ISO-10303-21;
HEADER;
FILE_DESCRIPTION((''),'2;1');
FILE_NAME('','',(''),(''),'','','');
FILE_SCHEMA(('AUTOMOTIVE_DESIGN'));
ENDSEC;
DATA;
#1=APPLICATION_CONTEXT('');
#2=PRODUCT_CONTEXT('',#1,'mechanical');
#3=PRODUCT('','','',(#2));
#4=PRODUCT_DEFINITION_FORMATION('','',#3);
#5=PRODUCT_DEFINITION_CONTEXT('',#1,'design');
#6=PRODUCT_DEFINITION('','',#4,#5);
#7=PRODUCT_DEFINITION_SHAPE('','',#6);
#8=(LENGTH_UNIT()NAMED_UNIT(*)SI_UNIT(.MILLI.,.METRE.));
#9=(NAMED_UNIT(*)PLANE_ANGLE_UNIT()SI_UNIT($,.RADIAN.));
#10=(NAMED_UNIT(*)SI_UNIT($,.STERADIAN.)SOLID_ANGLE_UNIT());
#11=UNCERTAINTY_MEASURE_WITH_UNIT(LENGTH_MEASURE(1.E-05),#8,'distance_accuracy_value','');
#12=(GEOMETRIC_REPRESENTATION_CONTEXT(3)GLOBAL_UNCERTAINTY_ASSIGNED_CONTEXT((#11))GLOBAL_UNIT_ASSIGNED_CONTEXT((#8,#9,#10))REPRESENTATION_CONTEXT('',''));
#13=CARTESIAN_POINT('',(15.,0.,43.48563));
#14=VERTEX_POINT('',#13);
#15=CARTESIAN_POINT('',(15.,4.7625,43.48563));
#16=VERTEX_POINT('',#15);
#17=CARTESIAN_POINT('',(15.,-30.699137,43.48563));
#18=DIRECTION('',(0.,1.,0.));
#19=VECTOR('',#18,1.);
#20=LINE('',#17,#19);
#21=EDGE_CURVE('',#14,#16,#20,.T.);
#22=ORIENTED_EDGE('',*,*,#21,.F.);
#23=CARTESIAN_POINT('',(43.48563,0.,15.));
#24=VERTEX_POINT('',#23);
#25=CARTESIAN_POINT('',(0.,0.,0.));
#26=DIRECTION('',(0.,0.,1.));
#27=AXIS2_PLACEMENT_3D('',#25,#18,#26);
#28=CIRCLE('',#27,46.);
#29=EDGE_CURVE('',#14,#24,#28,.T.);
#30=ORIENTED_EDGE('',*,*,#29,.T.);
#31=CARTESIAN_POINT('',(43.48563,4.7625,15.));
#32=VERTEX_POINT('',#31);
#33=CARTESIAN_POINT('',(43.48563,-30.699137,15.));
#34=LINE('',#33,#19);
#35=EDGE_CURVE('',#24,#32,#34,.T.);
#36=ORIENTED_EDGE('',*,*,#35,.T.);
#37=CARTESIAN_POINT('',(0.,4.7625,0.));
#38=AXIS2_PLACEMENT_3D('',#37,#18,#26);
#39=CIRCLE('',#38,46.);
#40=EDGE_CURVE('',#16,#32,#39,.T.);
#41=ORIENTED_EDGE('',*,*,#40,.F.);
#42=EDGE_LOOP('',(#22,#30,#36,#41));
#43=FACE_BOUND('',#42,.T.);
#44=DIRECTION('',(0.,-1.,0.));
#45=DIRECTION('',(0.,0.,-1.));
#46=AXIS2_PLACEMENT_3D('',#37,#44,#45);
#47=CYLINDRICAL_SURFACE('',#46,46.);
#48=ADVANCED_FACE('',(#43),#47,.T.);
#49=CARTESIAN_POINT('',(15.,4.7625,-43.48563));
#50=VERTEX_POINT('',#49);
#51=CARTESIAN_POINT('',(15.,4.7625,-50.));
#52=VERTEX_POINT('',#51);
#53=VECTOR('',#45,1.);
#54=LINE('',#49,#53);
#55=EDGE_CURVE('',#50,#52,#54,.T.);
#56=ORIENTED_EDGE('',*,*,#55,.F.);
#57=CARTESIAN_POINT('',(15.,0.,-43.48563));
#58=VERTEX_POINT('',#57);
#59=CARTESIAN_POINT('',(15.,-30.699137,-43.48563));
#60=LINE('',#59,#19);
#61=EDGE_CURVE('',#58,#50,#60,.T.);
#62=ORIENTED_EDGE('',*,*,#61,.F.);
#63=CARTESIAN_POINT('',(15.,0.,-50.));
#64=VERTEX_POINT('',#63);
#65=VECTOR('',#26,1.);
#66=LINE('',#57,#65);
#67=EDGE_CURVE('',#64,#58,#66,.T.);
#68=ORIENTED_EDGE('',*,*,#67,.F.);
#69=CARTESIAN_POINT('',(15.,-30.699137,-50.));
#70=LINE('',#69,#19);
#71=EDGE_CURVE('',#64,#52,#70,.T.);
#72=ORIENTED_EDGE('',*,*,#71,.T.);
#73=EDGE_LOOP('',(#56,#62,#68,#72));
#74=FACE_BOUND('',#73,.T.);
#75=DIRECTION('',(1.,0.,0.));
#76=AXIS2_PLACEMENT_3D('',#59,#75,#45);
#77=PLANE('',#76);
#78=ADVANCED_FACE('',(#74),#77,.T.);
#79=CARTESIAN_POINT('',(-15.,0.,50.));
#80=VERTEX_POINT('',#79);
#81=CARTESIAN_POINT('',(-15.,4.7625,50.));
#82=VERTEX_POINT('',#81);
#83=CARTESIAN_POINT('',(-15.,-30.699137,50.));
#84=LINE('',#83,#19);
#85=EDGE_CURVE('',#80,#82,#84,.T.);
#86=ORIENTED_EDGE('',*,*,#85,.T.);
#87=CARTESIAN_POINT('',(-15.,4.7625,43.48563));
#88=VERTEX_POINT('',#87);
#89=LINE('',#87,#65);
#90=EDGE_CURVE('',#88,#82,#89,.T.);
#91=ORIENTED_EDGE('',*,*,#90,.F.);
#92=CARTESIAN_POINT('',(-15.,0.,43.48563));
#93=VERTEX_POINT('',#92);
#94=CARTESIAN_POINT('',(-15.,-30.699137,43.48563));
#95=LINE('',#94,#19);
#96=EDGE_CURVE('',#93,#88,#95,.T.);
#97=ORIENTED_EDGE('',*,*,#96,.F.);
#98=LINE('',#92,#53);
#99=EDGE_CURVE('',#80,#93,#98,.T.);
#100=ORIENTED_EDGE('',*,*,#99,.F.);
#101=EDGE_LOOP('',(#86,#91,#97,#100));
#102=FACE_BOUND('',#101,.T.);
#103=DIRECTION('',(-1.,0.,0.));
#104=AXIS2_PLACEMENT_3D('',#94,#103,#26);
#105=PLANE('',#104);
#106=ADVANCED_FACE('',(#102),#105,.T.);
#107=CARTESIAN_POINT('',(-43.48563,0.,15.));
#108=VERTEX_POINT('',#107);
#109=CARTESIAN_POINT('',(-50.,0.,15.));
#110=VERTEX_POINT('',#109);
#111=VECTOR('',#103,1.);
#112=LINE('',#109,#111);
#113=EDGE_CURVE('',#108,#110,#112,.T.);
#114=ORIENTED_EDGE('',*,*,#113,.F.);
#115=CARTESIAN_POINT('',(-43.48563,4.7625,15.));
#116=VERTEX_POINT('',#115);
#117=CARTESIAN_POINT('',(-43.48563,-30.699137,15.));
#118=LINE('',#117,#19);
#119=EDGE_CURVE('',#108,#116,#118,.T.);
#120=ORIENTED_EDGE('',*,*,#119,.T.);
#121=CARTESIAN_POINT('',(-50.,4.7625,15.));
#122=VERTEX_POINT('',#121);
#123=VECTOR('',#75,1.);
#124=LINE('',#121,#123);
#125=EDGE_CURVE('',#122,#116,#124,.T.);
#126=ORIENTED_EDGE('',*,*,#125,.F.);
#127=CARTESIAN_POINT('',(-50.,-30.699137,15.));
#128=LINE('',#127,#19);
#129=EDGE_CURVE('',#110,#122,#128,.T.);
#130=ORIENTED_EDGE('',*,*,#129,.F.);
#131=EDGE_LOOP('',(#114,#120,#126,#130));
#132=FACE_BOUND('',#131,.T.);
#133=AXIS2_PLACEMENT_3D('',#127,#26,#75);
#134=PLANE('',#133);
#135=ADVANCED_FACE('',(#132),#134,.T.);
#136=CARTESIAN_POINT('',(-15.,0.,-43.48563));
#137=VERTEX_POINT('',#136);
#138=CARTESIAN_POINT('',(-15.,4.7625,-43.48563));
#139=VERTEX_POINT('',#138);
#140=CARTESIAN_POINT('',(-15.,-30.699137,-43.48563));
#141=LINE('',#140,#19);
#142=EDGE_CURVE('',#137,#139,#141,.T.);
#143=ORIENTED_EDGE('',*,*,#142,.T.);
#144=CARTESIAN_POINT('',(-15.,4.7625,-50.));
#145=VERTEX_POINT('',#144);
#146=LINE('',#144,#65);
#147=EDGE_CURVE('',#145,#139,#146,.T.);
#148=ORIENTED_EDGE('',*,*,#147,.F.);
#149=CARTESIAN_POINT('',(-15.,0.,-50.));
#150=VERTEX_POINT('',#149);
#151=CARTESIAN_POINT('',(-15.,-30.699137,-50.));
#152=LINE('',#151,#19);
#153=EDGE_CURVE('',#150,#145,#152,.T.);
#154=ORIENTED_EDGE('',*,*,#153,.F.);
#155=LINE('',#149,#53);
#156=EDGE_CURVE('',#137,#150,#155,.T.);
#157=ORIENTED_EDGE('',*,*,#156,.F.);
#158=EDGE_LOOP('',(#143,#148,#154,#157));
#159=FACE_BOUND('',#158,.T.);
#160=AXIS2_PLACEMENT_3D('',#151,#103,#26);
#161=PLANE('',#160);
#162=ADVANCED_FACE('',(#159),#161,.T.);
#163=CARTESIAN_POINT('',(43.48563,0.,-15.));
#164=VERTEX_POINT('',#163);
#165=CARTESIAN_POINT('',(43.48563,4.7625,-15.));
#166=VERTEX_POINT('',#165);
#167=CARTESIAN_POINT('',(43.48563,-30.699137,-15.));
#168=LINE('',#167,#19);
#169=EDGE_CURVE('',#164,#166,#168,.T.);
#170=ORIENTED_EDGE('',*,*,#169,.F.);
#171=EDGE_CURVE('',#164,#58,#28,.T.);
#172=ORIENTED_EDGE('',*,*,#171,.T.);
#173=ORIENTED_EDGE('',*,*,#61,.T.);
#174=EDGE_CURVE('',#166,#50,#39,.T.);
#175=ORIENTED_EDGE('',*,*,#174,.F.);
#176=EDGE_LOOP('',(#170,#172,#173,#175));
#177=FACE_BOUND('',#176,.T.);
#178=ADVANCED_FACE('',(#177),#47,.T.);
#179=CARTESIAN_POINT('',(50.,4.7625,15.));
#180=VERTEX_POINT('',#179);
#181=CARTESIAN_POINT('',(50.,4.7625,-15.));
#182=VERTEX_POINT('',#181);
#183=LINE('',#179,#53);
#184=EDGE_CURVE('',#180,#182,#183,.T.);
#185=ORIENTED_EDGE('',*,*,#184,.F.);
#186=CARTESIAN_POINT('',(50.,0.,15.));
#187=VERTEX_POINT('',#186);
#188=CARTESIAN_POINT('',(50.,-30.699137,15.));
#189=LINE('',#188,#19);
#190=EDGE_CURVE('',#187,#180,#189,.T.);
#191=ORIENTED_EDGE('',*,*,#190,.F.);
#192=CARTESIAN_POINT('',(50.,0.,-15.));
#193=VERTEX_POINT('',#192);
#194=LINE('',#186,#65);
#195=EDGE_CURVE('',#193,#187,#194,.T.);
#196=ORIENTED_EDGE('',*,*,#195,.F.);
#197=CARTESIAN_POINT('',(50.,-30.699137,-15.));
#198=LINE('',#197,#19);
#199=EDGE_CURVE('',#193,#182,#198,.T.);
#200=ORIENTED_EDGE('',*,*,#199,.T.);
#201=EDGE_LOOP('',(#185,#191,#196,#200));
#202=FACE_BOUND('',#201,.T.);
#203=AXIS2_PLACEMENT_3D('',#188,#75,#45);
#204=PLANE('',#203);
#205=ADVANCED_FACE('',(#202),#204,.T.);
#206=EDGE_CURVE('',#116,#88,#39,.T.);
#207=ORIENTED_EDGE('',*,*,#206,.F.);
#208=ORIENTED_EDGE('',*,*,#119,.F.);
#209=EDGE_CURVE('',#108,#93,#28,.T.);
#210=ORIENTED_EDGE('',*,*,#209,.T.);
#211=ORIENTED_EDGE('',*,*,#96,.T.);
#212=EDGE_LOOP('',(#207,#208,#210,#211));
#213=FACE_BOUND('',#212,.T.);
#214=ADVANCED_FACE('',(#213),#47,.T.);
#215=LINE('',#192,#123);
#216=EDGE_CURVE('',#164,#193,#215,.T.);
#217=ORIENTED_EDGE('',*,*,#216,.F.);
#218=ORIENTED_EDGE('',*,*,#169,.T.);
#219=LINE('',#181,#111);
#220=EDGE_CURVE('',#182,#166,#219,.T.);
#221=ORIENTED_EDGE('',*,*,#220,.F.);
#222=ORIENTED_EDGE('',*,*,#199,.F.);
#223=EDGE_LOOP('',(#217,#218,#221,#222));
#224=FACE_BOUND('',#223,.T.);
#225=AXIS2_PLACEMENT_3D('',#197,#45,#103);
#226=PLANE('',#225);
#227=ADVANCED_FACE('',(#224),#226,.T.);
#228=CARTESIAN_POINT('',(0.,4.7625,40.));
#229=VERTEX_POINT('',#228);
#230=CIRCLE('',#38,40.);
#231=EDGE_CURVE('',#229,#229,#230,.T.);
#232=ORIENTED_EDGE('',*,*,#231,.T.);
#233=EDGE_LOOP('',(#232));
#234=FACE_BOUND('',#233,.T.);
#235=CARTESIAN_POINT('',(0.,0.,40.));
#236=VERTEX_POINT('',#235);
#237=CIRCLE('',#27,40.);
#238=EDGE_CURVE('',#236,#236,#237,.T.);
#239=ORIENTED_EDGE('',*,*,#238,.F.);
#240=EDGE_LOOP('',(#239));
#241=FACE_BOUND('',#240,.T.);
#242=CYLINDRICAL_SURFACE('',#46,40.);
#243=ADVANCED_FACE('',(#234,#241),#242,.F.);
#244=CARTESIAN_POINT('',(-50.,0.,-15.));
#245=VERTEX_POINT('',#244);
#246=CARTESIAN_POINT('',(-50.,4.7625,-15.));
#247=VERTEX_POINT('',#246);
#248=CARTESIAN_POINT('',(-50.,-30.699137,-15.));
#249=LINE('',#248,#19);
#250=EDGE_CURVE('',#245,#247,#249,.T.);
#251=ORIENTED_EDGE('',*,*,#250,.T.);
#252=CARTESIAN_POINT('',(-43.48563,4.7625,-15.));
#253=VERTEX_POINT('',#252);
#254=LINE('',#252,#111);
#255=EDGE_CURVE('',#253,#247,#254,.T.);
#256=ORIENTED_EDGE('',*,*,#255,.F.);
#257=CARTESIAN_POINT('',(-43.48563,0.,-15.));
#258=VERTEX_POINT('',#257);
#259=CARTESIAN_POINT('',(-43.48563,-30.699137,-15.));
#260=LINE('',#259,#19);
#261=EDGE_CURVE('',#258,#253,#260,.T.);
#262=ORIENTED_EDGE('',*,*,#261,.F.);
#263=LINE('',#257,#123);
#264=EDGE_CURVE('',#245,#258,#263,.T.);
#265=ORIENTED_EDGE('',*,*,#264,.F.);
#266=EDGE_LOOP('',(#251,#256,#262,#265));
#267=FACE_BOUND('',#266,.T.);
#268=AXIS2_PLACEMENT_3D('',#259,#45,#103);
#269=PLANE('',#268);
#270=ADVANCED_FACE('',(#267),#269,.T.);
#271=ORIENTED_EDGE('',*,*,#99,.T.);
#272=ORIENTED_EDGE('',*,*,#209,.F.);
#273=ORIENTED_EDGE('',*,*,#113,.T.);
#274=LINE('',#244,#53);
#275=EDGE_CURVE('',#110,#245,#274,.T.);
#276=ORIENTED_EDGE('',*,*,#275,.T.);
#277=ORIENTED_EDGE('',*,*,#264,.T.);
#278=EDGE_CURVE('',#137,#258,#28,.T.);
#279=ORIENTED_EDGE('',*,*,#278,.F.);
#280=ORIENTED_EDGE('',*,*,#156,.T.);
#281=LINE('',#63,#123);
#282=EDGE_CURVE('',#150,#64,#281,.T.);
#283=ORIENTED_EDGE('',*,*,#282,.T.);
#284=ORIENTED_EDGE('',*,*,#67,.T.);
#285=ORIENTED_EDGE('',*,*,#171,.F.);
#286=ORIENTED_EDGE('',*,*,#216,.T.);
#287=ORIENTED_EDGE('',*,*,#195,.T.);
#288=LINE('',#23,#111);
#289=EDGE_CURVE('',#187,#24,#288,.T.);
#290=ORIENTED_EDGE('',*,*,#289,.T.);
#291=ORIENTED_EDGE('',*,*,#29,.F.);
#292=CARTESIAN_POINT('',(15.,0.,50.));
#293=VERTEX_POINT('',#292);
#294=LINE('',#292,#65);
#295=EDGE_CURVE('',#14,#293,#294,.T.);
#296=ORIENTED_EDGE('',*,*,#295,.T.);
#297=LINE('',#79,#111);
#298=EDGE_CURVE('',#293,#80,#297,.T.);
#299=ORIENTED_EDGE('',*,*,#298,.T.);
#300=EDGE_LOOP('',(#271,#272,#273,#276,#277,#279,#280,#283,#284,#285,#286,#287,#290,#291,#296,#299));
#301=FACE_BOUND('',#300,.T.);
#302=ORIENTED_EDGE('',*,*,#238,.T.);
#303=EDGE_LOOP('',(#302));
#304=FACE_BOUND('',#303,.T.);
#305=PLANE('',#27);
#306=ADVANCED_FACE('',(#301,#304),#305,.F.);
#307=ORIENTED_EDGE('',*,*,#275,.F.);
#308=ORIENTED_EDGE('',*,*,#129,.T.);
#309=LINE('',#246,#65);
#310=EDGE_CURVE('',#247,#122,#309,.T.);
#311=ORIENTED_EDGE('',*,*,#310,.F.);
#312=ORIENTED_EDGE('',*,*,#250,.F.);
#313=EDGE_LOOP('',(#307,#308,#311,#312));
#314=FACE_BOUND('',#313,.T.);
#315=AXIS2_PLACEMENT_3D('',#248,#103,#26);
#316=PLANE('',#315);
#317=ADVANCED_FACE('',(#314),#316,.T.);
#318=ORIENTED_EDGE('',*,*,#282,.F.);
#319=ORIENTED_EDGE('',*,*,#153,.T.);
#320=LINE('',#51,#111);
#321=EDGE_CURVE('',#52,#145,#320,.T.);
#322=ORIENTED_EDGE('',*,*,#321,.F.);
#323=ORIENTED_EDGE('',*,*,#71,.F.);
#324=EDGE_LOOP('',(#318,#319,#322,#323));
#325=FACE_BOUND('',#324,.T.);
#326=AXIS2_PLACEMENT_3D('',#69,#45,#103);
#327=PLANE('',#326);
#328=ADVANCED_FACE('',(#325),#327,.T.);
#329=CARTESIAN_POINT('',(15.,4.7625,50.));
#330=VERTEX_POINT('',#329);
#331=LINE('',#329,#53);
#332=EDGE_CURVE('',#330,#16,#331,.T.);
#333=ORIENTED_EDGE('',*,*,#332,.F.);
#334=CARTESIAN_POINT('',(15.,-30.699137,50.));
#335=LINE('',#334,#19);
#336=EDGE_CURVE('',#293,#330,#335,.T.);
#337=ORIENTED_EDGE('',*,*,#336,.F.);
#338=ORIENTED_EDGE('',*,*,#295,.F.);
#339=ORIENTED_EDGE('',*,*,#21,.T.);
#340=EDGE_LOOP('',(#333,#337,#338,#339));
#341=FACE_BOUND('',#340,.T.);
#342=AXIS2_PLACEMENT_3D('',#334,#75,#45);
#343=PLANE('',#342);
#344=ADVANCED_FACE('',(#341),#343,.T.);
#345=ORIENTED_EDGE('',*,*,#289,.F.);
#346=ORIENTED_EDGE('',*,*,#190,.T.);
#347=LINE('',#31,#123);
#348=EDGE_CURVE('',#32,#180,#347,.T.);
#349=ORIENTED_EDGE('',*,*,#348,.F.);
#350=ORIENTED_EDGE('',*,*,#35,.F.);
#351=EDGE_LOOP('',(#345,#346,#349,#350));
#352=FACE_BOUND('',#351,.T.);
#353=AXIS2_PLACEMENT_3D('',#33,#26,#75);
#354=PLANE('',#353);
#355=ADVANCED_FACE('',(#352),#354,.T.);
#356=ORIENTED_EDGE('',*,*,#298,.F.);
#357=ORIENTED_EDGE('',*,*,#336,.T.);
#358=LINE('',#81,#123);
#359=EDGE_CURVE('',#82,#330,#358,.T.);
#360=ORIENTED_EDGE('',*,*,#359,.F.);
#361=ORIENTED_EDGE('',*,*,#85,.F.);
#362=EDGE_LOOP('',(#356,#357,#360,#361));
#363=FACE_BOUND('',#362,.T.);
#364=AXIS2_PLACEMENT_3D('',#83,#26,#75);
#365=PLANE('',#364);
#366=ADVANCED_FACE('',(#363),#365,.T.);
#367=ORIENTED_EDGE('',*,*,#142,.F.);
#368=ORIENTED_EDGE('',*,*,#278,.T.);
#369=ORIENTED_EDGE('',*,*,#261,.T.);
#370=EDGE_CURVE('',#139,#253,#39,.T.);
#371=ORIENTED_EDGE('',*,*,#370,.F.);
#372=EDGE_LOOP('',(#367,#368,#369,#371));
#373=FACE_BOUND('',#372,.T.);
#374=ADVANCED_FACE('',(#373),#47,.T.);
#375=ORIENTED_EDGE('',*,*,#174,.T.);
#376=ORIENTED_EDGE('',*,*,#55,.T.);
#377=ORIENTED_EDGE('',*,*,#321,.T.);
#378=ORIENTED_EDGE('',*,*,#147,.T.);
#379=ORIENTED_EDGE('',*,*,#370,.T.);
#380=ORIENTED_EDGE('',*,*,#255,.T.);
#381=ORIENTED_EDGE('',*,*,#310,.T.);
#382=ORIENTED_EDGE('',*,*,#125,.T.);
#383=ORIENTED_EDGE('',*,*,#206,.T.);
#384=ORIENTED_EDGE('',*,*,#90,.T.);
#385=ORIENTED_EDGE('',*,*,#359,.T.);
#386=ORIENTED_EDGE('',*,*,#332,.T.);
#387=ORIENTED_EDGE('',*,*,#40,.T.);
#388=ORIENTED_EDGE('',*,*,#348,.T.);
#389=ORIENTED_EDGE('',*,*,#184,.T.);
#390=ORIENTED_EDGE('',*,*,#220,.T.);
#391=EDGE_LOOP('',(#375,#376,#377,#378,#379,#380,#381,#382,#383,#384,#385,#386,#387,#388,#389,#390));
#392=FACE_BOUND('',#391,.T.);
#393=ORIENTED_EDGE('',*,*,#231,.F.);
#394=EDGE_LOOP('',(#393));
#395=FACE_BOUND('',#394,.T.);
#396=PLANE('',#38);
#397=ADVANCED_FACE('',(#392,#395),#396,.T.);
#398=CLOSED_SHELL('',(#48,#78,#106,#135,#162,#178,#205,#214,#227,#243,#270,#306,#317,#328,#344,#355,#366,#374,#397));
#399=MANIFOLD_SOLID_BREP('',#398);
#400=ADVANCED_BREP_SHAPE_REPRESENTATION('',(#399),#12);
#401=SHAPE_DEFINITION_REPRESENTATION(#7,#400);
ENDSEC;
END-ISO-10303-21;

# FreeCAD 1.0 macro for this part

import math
import FreeCAD as App
import Part
import Sketcher
Q = App.Units.Quantity

doc = App.newDocument("Part")
body = doc.addObject("PartDesign::Body", "Body")

sketch1 = doc.addObject("Sketcher::SketchObject", "Sketch")
body.addObject(sketch1)
sketch1.AttachmentSupport = (doc.XZ_Plane, [""])
sketch1.MapMode = "FlatFace"
sketch1.addGeometry(Part.Circle(App.Vector(0, 0, 0), App.Vector(0, 0, 1), 46), False)
sketch1.addGeometry(Part.Circle(App.Vector(0, 0, 0), App.Vector(0, 0, 1), 40), False)
sketch1.addConstraint(Sketcher.Constraint("Coincident", 0, 3, -1, 1))
sketch1.addConstraint(Sketcher.Constraint("Coincident", 1, 3, -1, 1))
sketch1.addConstraint(Sketcher.Constraint("Diameter", 0, Q("92 mm")))
sketch1.addConstraint(Sketcher.Constraint("Diameter", 1, Q("80 mm")))
pad1 = doc.addObject("PartDesign::Pad", "Pad")
body.addObject(pad1)
pad1.Profile = sketch1
pad1.Length = 4.7625
pad1.Reversed = True

sketch2 = doc.addObject("Sketcher::SketchObject", "Sketch001")
body.addObject(sketch2)
sketch2.AttachmentSupport = (doc.XZ_Plane, [""])
sketch2.MapMode = "FlatFace"
sketch2.AttachmentOffset = App.Placement(App.Vector(0, 0, -4.7625), App.Rotation())
sketch2.addGeometry(Part.LineSegment(App.Vector(-43, -15, 0), App.Vector(-50, -15, 0)), False)
sketch2.addGeometry(Part.LineSegment(App.Vector(-50, -15, 0), App.Vector(-50, 15, 0)), False)
sketch2.addGeometry(Part.LineSegment(App.Vector(-50, 15, 0), App.Vector(-43, 15, 0)), False)
sketch2.addGeometry(Part.ArcOfCircle(Part.Circle(App.Vector(0, 0, 0), App.Vector(0, 0, 1), 46), math.radians(161), math.radians(199)), False)
sketch2.addConstraint(Sketcher.Constraint("Coincident", 0, 2, 1, 1))
sketch2.addConstraint(Sketcher.Constraint("Coincident", 1, 2, 2, 1))
sketch2.addConstraint(Sketcher.Constraint("Coincident", 2, 2, 3, 1))
sketch2.addConstraint(Sketcher.Constraint("Coincident", 3, 2, 0, 1))
sketch2.addConstraint(Sketcher.Constraint("Horizontal", 0))
sketch2.addConstraint(Sketcher.Constraint("Vertical", 1))
sketch2.addConstraint(Sketcher.Constraint("Horizontal", 2))
sketch2.addConstraint(Sketcher.Constraint("Coincident", 3, 3, -1, 1))
sketch2.addConstraint(Sketcher.Constraint("Vertical", 2, 2, 3, 2))
sketch2.addConstraint(Sketcher.Constraint("Radius", 3, Q("46 mm")))
sketch2.addConstraint(Sketcher.Constraint("DistanceY", 1, 1, 1, 2, Q("30 mm")))
sketch2.addConstraint(Sketcher.Constraint("DistanceX", 0, 2, -1, 1, Q("50 mm")))
pad2 = doc.addObject("PartDesign::Pad", "Pad001")
body.addObject(pad2)
pad2.Profile = sketch2
pad2.Length = 4.7625
doc.recompute()

polarpattern = doc.addObject("PartDesign::PolarPattern", "PolarPattern")
body.addObject(polarpattern)
polarpattern.Originals = [pad2]
polarpattern.Axis = (doc.Y_Axis, [""])
polarpattern.Angle = 360
polarpattern.Occurrences = 4
body.Tip = polarpattern

doc.recompute()
